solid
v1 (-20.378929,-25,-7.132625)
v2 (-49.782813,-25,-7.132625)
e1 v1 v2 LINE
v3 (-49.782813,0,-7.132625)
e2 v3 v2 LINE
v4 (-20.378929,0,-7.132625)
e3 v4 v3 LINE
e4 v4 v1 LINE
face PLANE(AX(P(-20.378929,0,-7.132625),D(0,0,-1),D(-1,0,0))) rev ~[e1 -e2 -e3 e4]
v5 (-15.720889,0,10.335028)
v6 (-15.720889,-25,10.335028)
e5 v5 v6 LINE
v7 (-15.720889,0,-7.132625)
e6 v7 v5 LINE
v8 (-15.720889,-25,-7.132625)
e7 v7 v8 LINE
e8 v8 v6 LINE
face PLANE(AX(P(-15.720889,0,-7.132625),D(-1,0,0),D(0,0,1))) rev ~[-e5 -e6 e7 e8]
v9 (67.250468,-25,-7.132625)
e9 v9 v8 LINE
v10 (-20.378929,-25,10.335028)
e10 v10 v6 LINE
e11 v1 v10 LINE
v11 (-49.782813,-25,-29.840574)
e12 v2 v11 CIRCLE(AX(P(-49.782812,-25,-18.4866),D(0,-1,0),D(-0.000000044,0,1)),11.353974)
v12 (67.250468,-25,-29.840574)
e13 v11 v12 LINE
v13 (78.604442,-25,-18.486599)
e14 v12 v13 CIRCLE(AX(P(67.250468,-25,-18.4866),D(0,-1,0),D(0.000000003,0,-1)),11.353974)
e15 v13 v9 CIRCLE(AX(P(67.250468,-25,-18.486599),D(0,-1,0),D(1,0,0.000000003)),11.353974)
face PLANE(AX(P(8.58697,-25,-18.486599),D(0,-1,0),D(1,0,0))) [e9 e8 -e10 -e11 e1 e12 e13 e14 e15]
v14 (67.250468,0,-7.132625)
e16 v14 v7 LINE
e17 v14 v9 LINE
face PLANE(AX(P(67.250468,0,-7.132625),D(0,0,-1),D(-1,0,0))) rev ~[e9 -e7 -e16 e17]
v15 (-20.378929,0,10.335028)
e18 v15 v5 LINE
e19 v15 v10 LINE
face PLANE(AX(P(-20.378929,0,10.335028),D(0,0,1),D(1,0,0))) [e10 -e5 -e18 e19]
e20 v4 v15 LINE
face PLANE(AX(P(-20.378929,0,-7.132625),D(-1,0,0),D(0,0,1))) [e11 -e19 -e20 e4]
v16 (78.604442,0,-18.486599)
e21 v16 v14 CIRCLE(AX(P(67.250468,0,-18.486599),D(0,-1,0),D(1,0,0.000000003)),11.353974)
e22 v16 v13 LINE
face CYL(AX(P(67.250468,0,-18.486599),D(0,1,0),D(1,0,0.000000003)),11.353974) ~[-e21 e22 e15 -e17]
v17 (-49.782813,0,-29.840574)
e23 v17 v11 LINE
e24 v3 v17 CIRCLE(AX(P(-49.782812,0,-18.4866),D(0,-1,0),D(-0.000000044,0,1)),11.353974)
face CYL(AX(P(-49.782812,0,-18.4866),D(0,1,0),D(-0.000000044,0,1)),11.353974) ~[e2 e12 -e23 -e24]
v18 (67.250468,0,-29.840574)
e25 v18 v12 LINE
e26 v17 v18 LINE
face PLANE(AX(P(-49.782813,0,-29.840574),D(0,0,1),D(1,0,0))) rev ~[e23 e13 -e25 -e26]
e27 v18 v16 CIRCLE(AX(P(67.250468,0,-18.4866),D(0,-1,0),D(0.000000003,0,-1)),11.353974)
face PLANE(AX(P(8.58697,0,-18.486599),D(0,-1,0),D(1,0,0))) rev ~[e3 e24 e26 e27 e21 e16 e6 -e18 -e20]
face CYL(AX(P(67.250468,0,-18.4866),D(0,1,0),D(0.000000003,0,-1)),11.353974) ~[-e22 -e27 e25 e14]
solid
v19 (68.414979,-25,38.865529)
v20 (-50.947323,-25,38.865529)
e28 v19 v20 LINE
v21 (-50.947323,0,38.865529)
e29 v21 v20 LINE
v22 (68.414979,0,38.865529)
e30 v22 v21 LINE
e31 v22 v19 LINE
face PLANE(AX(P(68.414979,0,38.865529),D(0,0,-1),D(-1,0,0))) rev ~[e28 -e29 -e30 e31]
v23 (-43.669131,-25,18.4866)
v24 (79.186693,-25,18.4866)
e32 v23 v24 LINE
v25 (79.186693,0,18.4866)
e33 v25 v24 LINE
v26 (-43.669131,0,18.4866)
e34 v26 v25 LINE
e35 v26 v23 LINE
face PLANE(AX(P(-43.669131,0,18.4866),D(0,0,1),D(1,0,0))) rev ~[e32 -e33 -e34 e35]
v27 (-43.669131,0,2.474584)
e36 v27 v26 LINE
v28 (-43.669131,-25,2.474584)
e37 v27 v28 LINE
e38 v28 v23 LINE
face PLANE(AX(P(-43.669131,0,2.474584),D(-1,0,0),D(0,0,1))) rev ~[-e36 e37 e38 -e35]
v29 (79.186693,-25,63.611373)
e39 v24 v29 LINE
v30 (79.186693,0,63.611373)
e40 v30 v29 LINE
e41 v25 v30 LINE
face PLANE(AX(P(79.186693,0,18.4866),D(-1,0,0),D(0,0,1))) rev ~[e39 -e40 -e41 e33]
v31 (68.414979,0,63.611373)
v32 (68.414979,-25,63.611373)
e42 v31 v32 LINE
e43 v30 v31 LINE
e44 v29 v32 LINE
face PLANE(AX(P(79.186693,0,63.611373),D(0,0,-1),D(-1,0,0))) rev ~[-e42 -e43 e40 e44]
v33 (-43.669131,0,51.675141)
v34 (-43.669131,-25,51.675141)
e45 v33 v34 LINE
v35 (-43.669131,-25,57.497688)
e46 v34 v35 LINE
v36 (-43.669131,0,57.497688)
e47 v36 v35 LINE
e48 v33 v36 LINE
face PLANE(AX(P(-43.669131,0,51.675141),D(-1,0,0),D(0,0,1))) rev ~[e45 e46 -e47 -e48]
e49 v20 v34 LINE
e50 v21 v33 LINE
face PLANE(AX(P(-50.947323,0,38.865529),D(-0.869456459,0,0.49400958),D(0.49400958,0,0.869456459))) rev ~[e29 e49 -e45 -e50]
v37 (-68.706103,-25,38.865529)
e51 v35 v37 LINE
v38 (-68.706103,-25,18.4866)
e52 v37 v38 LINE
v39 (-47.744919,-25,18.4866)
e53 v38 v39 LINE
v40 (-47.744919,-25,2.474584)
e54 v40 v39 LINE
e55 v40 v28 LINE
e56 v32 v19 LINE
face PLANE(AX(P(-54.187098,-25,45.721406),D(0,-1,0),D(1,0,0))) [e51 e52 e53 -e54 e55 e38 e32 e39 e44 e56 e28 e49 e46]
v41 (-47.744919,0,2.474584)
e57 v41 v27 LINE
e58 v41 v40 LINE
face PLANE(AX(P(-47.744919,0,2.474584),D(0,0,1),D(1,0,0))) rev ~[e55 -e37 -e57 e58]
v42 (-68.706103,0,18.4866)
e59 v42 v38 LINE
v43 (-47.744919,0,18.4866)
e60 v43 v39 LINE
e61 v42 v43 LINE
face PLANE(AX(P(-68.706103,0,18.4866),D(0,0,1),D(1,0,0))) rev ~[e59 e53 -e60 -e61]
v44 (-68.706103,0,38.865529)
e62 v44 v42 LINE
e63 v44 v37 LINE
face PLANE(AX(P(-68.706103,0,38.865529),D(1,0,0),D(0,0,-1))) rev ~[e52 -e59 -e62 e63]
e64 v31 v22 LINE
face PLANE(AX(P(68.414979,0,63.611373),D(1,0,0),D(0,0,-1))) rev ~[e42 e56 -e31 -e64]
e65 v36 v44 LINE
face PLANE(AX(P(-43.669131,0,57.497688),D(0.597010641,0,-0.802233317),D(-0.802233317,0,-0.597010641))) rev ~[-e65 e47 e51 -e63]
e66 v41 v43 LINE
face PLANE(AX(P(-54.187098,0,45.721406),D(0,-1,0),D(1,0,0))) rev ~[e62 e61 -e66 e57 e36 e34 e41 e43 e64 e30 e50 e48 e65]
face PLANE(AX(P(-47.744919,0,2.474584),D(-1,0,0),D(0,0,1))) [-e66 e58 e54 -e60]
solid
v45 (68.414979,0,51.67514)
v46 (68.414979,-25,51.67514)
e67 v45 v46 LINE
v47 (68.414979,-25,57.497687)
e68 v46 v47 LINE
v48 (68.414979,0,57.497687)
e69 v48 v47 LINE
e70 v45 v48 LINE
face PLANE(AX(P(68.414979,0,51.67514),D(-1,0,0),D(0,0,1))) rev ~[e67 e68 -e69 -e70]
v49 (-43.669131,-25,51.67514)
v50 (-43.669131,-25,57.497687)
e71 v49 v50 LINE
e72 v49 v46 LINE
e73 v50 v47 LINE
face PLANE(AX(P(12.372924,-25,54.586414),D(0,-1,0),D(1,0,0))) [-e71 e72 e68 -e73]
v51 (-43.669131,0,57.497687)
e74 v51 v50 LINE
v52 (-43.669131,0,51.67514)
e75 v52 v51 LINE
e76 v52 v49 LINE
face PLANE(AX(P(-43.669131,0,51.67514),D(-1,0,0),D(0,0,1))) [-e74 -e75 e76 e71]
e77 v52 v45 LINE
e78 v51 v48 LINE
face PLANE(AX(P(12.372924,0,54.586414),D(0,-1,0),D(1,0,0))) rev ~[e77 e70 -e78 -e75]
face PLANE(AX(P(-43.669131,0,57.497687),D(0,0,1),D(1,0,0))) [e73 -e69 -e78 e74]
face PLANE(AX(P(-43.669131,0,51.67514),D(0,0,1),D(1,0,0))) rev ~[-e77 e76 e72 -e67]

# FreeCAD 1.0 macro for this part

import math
import FreeCAD as App
import Part
import Sketcher
from FreeCAD import Vector


def add_polygon(sketch, points):
    """Adds a closed chain of lines whose ends are joined by coincident constraints."""
    first, n = sketch.GeometryCount, len(points)
    for a, b in zip(points, points[1:] + points[:1]):
        sketch.addGeometry(Part.LineSegment(App.Vector(*a, 0), App.Vector(*b, 0)), False)
    for i in range(n):
        sketch.addConstraint(Sketcher.Constraint("Coincident", first + i, 2, first + (i + 1) % n, 1))

doc = App.newDocument("Part")
body = doc.addObject("PartDesign::Body", "Body")

sketch1 = body.newObject("Sketcher::SketchObject", "Sketch")
sketch1.AttachmentSupport = (doc.getObject("XZ_Plane"), [""])
sketch1.MapMode = "FlatFace"
add_polygon(sketch1, [(-44, 57), (-44, 52), (68, 52), (68, 57)])
sketch1.addConstraint(Sketcher.Constraint("Vertical", 0))
sketch1.addConstraint(Sketcher.Constraint("Horizontal", 1))
sketch1.addConstraint(Sketcher.Constraint("Vertical", 2))
sketch1.addConstraint(Sketcher.Constraint("Horizontal", 3))
sketch1.addConstraint(Sketcher.Constraint("DistanceX", 1, 1, 1, 2, 112.08411))
sketch1.addConstraint(Sketcher.Constraint("DistanceY", 0, 2, 0, 1, 5.822547))
sketch1.addConstraint(Sketcher.Constraint("DistanceX", 0, 2, -1, 1, 43.669131))
sketch1.addConstraint(Sketcher.Constraint("DistanceY", -1, 1, 0, 2, 51.67514))
pad1 = body.newObject("PartDesign::Pad", "Pad")
pad1.Profile = sketch1
pad1.Length = 25
body2 = doc.addObject("PartDesign::Body", "Body001")

sketch2 = body2.newObject("Sketcher::SketchObject", "Sketch001")
sketch2.AttachmentSupport = (doc.getObject("XZ_Plane001"), [""])
sketch2.MapMode = "FlatFace"
add_polygon(sketch2, [(-43.7, 57.5), (-68.7, 38.9), (-68.7, 18.5), (-47.7, 18.5), (-47.7, 2.5), (-43.7, 2.5), (-43.7, 18.5), (79.2, 18.5), (79.2, 63.6), (68.4, 63.6), (68.4, 38.9), (-50.9, 38.9), (-43.7, 51.7)])
sketch2.addConstraint(Sketcher.Constraint("Vertical", 1))
sketch2.addConstraint(Sketcher.Constraint("Horizontal", 2))
sketch2.addConstraint(Sketcher.Constraint("Vertical", 3))
sketch2.addConstraint(Sketcher.Constraint("Horizontal", 4))
sketch2.addConstraint(Sketcher.Constraint("Vertical", 5))
sketch2.addConstraint(Sketcher.Constraint("Horizontal", 6))
sketch2.addConstraint(Sketcher.Constraint("Vertical", 7))
sketch2.addConstraint(Sketcher.Constraint("Horizontal", 8))
sketch2.addConstraint(Sketcher.Constraint("Vertical", 9))
sketch2.addConstraint(Sketcher.Constraint("Horizontal", 10))
sketch2.addConstraint(Sketcher.Constraint("Vertical", 12))
sketch2.addConstraint(Sketcher.Constraint("Horizontal", 2, 2, 5, 2))
sketch2.addConstraint(Sketcher.Constraint("Horizontal", 0, 2, 9, 2))
sketch2.addConstraint(Sketcher.Constraint("Vertical", 5, 2, 11, 2))
sketch2.addConstraint(Sketcher.Constraint("DistanceX", 10, 2, 10, 1, 119.362302))
sketch2.addConstraint(Sketcher.Constraint("DistanceX", 4, 1, 4, 2, 4.075788))
sketch2.addConstraint(Sketcher.Constraint("DistanceY", 1, 2, 1, 1, 20.378929))
sketch2.addConstraint(Sketcher.Constraint("DistanceY", -1, 1, 1, 2, 18.4866))
sketch2.addConstraint(Sketcher.Constraint("DistanceX", 2, 2, 8, 2, 116.159898))
sketch2.addConstraint(Sketcher.Constraint("Distance", 0, 31.20909))
sketch2.addConstraint(Sketcher.Constraint("DistanceX", 2, 1, 2, 2, 20.961184))
sketch2.addConstraint(Sketcher.Constraint("DistanceX", 6, 1, 6, 2, 122.855824))
sketch2.addConstraint(Sketcher.Constraint("DistanceY", 3, 2, 3, 1, 16.012016))
sketch2.addConstraint(Sketcher.Constraint("DistanceY", 7, 1, 7, 2, 45.124773))
sketch2.addConstraint(Sketcher.Constraint("DistanceY", 12, 1, 12, 2, 5.822547))
sketch2.addConstraint(Sketcher.Constraint("DistanceX", 2, 2, -1, 1, 47.744919))
pad2 = body2.newObject("PartDesign::Pad", "Pad001")
pad2.Profile = sketch2
pad2.Length = 25
body3 = doc.addObject("PartDesign::Body", "Body002")

sketch3 = body3.newObject("Sketcher::SketchObject", "Sketch002")
sketch3.AttachmentSupport = (doc.getObject("XZ_Plane002"), [""])
sketch3.MapMode = "FlatFace"
sketch3.addGeometry(Part.LineSegment(Vector(-20.4, -7.1, 0), Vector(-49.8, -7.1, 0)), False)
sketch3.addGeometry(Part.ArcOfCircle(Part.Circle(Vector(-49.8, -18.5, 0), Vector(0, 0, 1), 11.4), math.radians(90), math.radians(270)), False)
sketch3.addGeometry(Part.LineSegment(Vector(-49.8, -29.8, 0), Vector(67.3, -29.8, 0)), False)
sketch3.addGeometry(Part.ArcOfCircle(Part.Circle(Vector(67.3, -18.5, 0), Vector(0, 0, 1), 11.4), math.radians(-90), math.radians(0)), False)
sketch3.addGeometry(Part.ArcOfCircle(Part.Circle(Vector(67.3, -18.5, 0), Vector(0, 0, 1), 11.4), math.radians(0), math.radians(90)), False)
sketch3.addGeometry(Part.LineSegment(Vector(67.3, -7.1, 0), Vector(-15.7, -7.1, 0)), False)
sketch3.addGeometry(Part.LineSegment(Vector(-15.7, -7.1, 0), Vector(-15.7, 10.3, 0)), False)
sketch3.addGeometry(Part.LineSegment(Vector(-15.7, 10.3, 0), Vector(-20.4, 10.3, 0)), False)
sketch3.addGeometry(Part.LineSegment(Vector(-20.4, 10.3, 0), Vector(-20.4, -7.1, 0)), False)
sketch3.addConstraint(Sketcher.Constraint("Tangent", 0, 2, 1, 1))
sketch3.addConstraint(Sketcher.Constraint("Tangent", 1, 2, 2, 1))
sketch3.addConstraint(Sketcher.Constraint("Tangent", 2, 2, 3, 1))
sketch3.addConstraint(Sketcher.Constraint("Tangent", 3, 2, 4, 1))
sketch3.addConstraint(Sketcher.Constraint("Tangent", 4, 2, 5, 1))
sketch3.addConstraint(Sketcher.Constraint("Coincident", 5, 2, 6, 1))
sketch3.addConstraint(Sketcher.Constraint("Coincident", 6, 2, 7, 1))
sketch3.addConstraint(Sketcher.Constraint("Coincident", 7, 2, 8, 1))
sketch3.addConstraint(Sketcher.Constraint("Coincident", 8, 2, 0, 1))
sketch3.addConstraint(Sketcher.Constraint("Horizontal", 0))
sketch3.addConstraint(Sketcher.Constraint("Horizontal", 2))
sketch3.addConstraint(Sketcher.Constraint("Horizontal", 5))
sketch3.addConstraint(Sketcher.Constraint("Vertical", 6))
sketch3.addConstraint(Sketcher.Constraint("Horizontal", 7))
sketch3.addConstraint(Sketcher.Constraint("Vertical", 8))
sketch3.addConstraint(Sketcher.Constraint("Equal", 1, 3))
sketch3.addConstraint(Sketcher.Constraint("Equal", 3, 4))
sketch3.addConstraint(Sketcher.Constraint("Horizontal", 4, 3, 3, 2))
sketch3.addConstraint(Sketcher.Constraint("Radius", 1, 11.353974))
sketch3.addConstraint(Sketcher.Constraint("DistanceX", 2, 1, 2, 2, 117.033281))
sketch3.addConstraint(Sketcher.Constraint("DistanceX", 7, 2, 7, 1, 4.65804))
sketch3.addConstraint(Sketcher.Constraint("DistanceY", 1, 3, -1, 1, 18.4866))
sketch3.addConstraint(Sketcher.Constraint("DistanceY", 1, 2, 6, 2, 40.175601))
sketch3.addConstraint(Sketcher.Constraint("DistanceX", 0, 2, 0, 1, 29.403884))
sketch3.addConstraint(Sketcher.Constraint("DistanceX", -1, 1, 3, 2, 78.604442))
pad3 = body3.newObject("PartDesign::Pad", "Pad002")
pad3.Profile = sketch3
pad3.Length = 25

doc.recompute()
